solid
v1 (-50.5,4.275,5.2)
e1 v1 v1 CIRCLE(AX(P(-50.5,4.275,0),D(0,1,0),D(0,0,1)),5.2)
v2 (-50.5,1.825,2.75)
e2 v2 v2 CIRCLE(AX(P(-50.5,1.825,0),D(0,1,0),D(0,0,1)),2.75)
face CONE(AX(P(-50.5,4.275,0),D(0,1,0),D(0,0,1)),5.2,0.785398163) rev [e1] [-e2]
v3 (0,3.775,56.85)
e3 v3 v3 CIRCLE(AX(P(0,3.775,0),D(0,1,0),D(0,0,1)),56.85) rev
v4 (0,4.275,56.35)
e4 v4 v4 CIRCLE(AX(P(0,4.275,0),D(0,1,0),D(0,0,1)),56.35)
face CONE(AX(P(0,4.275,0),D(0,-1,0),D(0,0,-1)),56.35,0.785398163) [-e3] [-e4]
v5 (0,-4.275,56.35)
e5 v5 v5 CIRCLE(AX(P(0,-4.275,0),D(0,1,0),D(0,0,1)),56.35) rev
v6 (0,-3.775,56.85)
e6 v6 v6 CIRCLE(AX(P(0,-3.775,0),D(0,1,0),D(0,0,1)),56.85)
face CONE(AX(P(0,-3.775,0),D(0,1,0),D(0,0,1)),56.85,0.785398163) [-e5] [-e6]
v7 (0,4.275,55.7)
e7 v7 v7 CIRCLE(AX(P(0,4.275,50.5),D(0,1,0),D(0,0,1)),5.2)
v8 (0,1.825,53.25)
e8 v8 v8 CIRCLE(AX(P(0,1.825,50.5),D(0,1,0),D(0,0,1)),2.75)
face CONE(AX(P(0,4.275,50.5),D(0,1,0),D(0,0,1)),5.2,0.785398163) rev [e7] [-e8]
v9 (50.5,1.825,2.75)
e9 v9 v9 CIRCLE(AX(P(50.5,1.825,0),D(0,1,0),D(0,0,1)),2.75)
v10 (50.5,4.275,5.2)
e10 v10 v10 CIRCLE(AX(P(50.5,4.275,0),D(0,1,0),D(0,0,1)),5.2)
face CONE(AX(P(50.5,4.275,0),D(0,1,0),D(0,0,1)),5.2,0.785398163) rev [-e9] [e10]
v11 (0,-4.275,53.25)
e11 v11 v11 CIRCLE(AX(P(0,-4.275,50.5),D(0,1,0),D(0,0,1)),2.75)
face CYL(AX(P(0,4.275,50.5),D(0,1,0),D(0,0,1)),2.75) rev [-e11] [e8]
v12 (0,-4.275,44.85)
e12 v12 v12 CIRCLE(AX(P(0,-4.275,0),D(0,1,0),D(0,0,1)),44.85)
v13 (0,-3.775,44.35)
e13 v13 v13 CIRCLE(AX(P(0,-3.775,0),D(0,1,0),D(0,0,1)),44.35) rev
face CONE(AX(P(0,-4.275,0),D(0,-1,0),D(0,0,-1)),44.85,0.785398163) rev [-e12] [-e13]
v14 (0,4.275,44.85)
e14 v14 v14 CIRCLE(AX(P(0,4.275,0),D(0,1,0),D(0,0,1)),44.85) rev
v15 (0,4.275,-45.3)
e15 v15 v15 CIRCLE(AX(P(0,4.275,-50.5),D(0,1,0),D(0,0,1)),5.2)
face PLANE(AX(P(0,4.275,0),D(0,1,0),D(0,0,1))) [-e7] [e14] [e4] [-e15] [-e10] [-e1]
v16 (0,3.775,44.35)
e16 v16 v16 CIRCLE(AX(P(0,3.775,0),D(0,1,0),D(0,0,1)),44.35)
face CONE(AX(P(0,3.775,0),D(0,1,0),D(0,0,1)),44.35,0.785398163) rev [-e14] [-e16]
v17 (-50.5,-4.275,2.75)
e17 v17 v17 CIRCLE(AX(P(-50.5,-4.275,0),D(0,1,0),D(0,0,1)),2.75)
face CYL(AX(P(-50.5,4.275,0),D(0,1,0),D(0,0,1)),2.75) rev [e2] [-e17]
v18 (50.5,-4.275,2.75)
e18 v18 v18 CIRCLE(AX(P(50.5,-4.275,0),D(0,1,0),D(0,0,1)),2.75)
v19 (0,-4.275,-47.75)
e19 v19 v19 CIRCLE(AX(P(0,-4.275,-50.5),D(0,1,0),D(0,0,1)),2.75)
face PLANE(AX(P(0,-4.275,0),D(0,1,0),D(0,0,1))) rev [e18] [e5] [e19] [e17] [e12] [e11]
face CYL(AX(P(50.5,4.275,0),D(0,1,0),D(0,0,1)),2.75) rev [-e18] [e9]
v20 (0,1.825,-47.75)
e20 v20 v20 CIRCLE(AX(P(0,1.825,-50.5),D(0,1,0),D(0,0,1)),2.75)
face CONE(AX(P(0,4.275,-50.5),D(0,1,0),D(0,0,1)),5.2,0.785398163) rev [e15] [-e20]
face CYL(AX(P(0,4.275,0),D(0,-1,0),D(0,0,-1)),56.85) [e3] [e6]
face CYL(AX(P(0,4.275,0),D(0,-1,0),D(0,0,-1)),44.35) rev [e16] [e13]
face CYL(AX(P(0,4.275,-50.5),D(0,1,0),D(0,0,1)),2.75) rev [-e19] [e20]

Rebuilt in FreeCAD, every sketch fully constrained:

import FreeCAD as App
import Part
import Sketcher
Q = App.Units.Quantity


def edges_at(feature, points):
    """Names of the edges that pass closest to the given points."""
    edges = feature.Shape.Edges
    near = lambda p: min(range(len(edges)), key=lambda i: edges[i].distToShape(Part.Vertex(*p))[0])
    return sorted({f"Edge{near(p) + 1}" for p in points})

doc = App.newDocument("Part")
params = doc.addObject("Spreadsheet::Sheet", "Params")
for row, (alias, value) in enumerate([
    ("sketch1_diameter", "113.7 mm"),
    ("sketch1_diameter2", "88.7 mm"),
    ("pad1_length", "8.55 mm"),
    ("chamfer_size", "0.5 mm"),
    ("sketch2_diameter", "5 mm"),
    ("pocket1_length", "10 mm"),
    ("sketch3_height", "5.2 mm"),
    ("sketch3_width", "7.55 mm"),
    ("groove_angle", "360 deg"),
], start=1):
    params.set(f"A{row}", alias)
    params.set(f"B{row}", "=" + value)
    params.setAlias(f"B{row}", alias)

body = doc.addObject("PartDesign::Body", "Body")

sketch1 = body.newObject("Sketcher::SketchObject", "Sketch")
sketch1.AttachmentSupport = (doc.getObject("XZ_Plane"), [""])
sketch1.MapMode = "FlatFace"
sketch1.addGeometry(Part.Circle(App.Vector(0, 0, 0), App.Vector(0, 0, 1), 57), False)
sketch1.addGeometry(Part.Circle(App.Vector(0, 0, 0), App.Vector(0, 0, 1), 44), False)
sketch1.addConstraint(Sketcher.Constraint("Coincident", 0, 3, -1, 1))
sketch1.addConstraint(Sketcher.Constraint("Coincident", 1, 3, -1, 1))
sketch1.addConstraint(Sketcher.Constraint("Diameter", 0, 113.7))
sketch1.addConstraint(Sketcher.Constraint("Diameter", 1, 88.7))
sketch1.setExpression("Constraints[2]", "Params.sketch1_diameter")
sketch1.setExpression("Constraints[3]", "Params.sketch1_diameter2")
pad1 = body.newObject("PartDesign::Pad", "Pad")
pad1.Profile = sketch1
pad1.setExpression("Length", "Params.pad1_length")
pad1.Midplane = True
doc.recompute()

chamfer = body.newObject("PartDesign::Chamfer", "Chamfer")
chamfer.Base = (pad1, edges_at(pad1, [
    (0, -4.275, -56.85),
    (0, 4.275, -56.85),
    (0, -4.275, -44.35),
    (0, 4.275, -44.35),
]))
chamfer.setExpression("Size", "Params.chamfer_size")

sketch2 = body.newObject("Sketcher::SketchObject", "Sketch001")
sketch2.AttachmentSupport = (doc.getObject("XZ_Plane"), [""])
sketch2.MapMode = "FlatFace"
sketch2.AttachmentOffset = App.Placement(App.Vector(0, 0, -4.275), App.Rotation())
sketch2.addGeometry(Part.Circle(App.Vector(0, -50.5, 0), App.Vector(0, 0, 1), 2.5), False)
sketch2.addConstraint(Sketcher.Constraint("PointOnObject", 0, 3, -2))
sketch2.addConstraint(Sketcher.Constraint("Diameter", 0, 5.0))
sketch2.addConstraint(Sketcher.Constraint("DistanceY", 0, 3, -1, 1, 50.5))
sketch2.setExpression("Constraints[1]", "Params.sketch2_diameter")
pocket1 = body.newObject("PartDesign::Pocket", "Pocket")
pocket1.Profile = sketch2
pocket1.setExpression("Length", "Params.pocket1_length")
pocket1.Reversed = True

sketch3 = body.newObject("Sketcher::SketchObject", "Sketch002")
sketch3.AttachmentSupport = (doc.getObject("YZ_Plane"), [""])
sketch3.MapMode = "FlatFace"
sketch3.addGeometry(Part.LineSegment(App.Vector(-7.4, -50.5, 0), App.Vector(4.3, -50.5, 0)), False)
sketch3.addGeometry(Part.LineSegment(App.Vector(4.3, -50.5, 0), App.Vector(4.3, -45.3, 0)), False)
sketch3.addGeometry(Part.LineSegment(App.Vector(4.3, -45.3, 0), App.Vector(1.8, -47.8, 0)), False)
sketch3.addGeometry(Part.LineSegment(App.Vector(1.8, -47.8, 0), App.Vector(-5.7, -47.8, 0)), False)
sketch3.addGeometry(Part.LineSegment(App.Vector(-5.7, -47.8, 0), App.Vector(-7.4, -50.5, 0)), False)
sketch3.addGeometry(Part.LineSegment(App.Vector(4.3, -50.5, 0), App.Vector(-7.4, -50.5, 0)), True)
sketch3.addConstraint(Sketcher.Constraint("Coincident", 0, 2, 1, 1))
sketch3.addConstraint(Sketcher.Constraint("Coincident", 1, 2, 2, 1))
sketch3.addConstraint(Sketcher.Constraint("Coincident", 2, 2, 3, 1))
sketch3.addConstraint(Sketcher.Constraint("Coincident", 3, 2, 4, 1))
sketch3.addConstraint(Sketcher.Constraint("Coincident", 4, 2, 0, 1))
sketch3.addConstraint(Sketcher.Constraint("Horizontal", 0))
sketch3.addConstraint(Sketcher.Constraint("Vertical", 1))
sketch3.addConstraint(Sketcher.Constraint("Horizontal", 3))
sketch3.addConstraint(Sketcher.Constraint("Horizontal", 5))
sketch3.addConstraint(Sketcher.Constraint("Coincident", 5, 1, 0, 2))
sketch3.addConstraint(Sketcher.Constraint("Equal", 0, 5))
sketch3.addConstraint(Sketcher.Constraint("Angle", 2, Q("-135 deg")))
sketch3.addConstraint(Sketcher.Constraint("Angle", 4, Q("-121 deg")))
sketch3.addConstraint(Sketcher.Constraint("DistanceY", 1, 1, 1, 2, 5.2))
sketch3.addConstraint(Sketcher.Constraint("DistanceX", 3, 2, 1, 2, 10.0))
sketch3.addConstraint(Sketcher.Constraint("DistanceX", 3, 2, 3, 1, 7.55))
sketch3.addConstraint(Sketcher.Constraint("DistanceY", 0, 2, -1, 1, 50.5))
sketch3.addConstraint(Sketcher.Constraint("DistanceX", -1, 1, 0, 2, 4.275))
sketch3.setExpression("Constraints[13]", "Params.sketch3_height")
sketch3.setExpression("Constraints[15]", "Params.sketch3_width")
groove = body.newObject("PartDesign::Groove", "Groove")
groove.Profile = sketch3
groove.ReferenceAxis = (sketch3, ["Axis0"])
groove.setExpression("Angle", "Params.groove_angle")
doc.recompute()

polarpattern = body.newObject("PartDesign::PolarPattern", "PolarPattern")
polarpattern.Originals = [groove]
polarpattern.Axis = (doc.getObject("Y_Axis"), [""])
polarpattern.Angle = 360
polarpattern.Occurrences = 4
body.Tip = polarpattern

doc.recompute()
